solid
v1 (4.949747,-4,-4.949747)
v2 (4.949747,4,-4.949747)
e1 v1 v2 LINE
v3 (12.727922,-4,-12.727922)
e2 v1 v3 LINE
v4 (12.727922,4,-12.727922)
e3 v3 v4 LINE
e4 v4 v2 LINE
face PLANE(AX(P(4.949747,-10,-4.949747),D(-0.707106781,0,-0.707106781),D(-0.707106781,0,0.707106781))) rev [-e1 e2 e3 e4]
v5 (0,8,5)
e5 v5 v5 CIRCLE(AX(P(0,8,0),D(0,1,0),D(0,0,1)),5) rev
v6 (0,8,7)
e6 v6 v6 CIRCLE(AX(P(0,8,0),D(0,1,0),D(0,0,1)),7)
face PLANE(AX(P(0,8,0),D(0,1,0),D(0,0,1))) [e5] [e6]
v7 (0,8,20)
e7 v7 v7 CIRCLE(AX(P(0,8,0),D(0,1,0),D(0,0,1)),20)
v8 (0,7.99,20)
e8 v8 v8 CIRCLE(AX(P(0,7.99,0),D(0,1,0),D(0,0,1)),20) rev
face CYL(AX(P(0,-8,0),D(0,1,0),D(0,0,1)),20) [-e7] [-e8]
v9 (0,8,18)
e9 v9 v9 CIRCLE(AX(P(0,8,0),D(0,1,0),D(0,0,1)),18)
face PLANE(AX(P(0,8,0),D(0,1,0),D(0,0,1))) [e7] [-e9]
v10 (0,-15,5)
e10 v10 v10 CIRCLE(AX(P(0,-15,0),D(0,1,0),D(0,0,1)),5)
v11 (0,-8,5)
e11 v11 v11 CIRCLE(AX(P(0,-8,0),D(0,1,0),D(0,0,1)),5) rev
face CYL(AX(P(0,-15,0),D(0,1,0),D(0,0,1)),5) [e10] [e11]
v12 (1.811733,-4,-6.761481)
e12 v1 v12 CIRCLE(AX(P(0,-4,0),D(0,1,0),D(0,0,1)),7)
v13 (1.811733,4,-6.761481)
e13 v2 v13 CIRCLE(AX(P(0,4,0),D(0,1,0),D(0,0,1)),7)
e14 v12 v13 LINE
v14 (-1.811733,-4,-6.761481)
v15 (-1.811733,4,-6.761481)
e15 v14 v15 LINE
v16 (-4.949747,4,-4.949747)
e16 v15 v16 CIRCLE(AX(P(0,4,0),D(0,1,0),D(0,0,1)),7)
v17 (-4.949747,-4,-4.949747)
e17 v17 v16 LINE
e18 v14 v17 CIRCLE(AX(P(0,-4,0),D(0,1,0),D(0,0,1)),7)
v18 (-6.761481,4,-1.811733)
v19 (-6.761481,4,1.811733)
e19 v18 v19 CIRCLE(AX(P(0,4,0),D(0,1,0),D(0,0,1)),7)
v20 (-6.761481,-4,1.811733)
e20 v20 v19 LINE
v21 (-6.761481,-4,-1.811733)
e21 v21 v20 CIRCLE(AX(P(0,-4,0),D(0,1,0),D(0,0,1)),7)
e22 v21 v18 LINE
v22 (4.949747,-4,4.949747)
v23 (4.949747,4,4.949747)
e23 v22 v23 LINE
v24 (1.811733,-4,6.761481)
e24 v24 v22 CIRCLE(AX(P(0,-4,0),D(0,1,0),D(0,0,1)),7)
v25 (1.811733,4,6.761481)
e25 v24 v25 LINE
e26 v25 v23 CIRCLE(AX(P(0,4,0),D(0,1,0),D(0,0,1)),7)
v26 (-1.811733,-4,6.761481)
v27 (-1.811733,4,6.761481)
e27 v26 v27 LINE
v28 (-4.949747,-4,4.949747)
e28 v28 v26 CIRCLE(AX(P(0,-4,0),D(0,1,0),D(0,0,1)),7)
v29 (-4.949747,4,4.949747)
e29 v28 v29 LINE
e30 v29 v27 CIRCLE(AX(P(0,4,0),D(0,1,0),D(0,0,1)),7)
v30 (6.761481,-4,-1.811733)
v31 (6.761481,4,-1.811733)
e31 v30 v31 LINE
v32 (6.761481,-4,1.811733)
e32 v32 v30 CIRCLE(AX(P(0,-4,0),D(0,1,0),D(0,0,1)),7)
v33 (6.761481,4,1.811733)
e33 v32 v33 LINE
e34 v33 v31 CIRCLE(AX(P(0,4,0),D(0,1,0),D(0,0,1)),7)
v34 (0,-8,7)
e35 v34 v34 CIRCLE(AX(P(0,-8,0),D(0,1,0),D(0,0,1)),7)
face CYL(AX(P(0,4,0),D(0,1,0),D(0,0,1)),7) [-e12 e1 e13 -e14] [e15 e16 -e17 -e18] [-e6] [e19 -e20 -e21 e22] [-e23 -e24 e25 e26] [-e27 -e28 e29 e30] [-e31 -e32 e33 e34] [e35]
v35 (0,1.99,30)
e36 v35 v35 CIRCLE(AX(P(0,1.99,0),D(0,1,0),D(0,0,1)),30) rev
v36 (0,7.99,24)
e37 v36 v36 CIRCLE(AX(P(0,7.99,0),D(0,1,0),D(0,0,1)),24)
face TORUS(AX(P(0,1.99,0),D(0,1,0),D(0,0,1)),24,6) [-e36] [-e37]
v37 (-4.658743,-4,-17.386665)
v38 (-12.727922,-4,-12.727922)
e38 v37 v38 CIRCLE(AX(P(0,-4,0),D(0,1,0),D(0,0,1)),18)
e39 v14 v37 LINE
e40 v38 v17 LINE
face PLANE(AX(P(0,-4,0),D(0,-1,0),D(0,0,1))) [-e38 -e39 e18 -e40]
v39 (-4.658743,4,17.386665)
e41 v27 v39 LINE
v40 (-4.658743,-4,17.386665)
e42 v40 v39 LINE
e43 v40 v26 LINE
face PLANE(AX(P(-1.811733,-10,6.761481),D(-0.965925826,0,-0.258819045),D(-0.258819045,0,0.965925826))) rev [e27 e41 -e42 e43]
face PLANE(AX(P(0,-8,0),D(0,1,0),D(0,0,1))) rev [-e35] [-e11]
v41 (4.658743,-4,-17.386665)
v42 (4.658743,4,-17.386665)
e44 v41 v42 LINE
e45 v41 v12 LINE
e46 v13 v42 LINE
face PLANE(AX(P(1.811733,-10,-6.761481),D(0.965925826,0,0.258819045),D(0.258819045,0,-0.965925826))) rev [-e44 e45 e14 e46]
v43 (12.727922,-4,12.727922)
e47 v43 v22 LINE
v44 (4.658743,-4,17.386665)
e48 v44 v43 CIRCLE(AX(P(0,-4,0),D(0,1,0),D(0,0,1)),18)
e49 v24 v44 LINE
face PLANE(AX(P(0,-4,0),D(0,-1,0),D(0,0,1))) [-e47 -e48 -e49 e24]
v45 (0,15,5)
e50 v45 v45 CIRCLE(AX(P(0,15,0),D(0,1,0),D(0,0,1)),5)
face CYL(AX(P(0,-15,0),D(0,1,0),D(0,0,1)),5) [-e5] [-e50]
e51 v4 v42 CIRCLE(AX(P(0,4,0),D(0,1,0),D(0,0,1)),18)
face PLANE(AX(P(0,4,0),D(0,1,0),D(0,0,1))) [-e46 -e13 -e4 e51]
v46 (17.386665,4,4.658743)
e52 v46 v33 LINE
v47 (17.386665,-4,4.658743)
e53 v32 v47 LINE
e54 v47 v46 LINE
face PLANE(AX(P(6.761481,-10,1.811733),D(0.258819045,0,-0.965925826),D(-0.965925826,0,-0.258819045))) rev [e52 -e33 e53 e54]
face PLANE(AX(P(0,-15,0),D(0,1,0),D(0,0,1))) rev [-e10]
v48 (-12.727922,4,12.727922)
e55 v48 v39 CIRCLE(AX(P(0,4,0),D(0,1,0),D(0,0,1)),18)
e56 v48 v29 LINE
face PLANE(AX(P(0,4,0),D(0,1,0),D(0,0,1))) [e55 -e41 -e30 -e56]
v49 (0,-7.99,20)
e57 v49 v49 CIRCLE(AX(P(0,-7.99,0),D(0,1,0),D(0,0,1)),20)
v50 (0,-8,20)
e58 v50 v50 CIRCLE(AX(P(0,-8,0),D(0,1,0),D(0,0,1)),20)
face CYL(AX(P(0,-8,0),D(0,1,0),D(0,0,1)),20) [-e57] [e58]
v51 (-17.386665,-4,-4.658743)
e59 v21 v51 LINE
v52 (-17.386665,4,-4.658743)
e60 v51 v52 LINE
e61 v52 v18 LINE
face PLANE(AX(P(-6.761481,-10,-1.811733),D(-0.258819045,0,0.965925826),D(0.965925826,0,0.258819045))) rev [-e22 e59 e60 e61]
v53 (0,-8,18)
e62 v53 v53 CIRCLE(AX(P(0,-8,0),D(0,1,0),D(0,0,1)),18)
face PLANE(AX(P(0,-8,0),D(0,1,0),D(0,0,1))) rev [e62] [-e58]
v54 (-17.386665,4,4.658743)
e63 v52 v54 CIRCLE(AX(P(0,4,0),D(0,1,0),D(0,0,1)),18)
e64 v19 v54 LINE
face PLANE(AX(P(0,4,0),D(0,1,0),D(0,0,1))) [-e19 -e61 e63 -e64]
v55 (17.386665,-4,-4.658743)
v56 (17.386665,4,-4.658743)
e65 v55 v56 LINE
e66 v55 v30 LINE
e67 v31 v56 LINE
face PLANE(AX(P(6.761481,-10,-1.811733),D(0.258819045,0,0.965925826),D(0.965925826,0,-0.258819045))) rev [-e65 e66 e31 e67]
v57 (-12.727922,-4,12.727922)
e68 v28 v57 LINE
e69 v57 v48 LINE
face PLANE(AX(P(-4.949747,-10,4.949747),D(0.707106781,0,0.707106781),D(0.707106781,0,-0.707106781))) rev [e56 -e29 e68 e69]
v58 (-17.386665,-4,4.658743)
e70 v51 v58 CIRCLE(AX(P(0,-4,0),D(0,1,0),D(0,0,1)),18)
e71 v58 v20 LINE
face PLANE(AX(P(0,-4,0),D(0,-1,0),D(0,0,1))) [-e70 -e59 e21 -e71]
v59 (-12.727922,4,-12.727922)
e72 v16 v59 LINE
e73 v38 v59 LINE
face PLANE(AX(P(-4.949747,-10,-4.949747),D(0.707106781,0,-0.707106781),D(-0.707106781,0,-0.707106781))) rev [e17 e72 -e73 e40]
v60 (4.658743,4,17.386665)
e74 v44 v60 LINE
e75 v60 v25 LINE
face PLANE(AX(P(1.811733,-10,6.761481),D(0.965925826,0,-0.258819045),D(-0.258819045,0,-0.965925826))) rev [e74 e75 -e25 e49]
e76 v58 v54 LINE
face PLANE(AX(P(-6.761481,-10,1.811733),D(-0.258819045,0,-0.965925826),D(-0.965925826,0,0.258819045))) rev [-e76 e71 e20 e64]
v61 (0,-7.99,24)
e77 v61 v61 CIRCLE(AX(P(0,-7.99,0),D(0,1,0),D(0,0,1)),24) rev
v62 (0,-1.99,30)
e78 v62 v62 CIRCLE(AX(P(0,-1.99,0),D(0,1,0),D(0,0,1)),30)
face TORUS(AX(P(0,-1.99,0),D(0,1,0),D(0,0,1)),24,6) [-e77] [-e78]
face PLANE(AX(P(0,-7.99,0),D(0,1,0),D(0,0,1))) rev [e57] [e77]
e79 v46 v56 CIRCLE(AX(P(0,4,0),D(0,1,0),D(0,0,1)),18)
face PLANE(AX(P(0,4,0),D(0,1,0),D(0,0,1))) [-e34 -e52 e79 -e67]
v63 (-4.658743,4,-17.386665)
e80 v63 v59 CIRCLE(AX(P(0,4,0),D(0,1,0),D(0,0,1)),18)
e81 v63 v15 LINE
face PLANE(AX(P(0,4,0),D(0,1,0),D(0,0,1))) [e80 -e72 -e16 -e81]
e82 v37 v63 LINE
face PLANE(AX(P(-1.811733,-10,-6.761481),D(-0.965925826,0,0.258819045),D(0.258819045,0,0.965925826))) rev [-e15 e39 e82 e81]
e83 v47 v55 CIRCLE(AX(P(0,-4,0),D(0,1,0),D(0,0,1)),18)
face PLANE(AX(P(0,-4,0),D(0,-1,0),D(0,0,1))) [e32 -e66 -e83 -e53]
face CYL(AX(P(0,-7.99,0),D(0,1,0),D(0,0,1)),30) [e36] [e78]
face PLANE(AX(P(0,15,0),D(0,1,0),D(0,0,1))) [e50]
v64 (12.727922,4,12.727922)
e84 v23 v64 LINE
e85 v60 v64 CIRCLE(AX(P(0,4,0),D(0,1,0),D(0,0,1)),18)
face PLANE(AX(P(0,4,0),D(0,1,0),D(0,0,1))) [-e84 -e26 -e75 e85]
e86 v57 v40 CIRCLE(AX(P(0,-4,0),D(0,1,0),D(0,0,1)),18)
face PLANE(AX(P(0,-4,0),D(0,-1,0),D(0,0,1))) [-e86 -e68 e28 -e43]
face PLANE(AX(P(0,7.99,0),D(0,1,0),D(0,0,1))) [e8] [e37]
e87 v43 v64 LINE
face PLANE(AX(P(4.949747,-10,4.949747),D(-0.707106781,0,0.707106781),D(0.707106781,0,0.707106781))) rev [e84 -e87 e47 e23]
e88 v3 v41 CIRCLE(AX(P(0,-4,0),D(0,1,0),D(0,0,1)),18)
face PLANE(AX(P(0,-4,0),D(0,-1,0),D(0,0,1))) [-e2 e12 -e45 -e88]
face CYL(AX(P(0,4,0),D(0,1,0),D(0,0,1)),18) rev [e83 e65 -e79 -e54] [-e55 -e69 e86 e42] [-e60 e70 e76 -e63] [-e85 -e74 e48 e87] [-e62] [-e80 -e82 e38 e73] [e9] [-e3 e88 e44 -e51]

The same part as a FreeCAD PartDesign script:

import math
import FreeCAD as App
import Part
import Sketcher

V = App.Vector
Q = App.Units.Quantity


def edges_at(feature, points):
    """Names of the edges that pass closest to the given points."""
    edges = feature.Shape.Edges
    near = lambda p: min(range(len(edges)), key=lambda i: edges[i].distToShape(Part.Vertex(*p))[0])
    return sorted({f"Edge{near(p) + 1}" for p in points})

doc = App.newDocument("Part")
body = doc.addObject("PartDesign::Body", "Body")

sketch1 = body.newObject("Sketcher::SketchObject", "Sketch")
sketch1.AttachmentSupport = (doc.getObject("XZ_Plane"), [""])
sketch1.MapMode = "FlatFace"
sketch1.addGeometry(Part.Circle(V(0, 0, 0), V(0, 0, 1), 5), False)
sketch1.addConstraint(Sketcher.Constraint("Coincident", 0, 3, -1, 1))
sketch1.addConstraint(Sketcher.Constraint("Diameter", 0, Q("10 mm")))
pad1 = body.newObject("PartDesign::Pad", "Pad")
pad1.Profile = sketch1
pad1.Type = "TwoLengths"
pad1.Length = 15
pad1.Length2 = 15
pad1.Reversed = True

sketch2 = body.newObject("Sketcher::SketchObject", "Sketch001")
sketch2.AttachmentSupport = (doc.getObject("XZ_Plane"), [""])
sketch2.MapMode = "FlatFace"
sketch2.addGeometry(Part.Circle(V(0, 0, 0), V(0, 0, 1), 20), False)
sketch2.addConstraint(Sketcher.Constraint("Coincident", 0, 3, -1, 1))
sketch2.addConstraint(Sketcher.Constraint("Diameter", 0, Q("40 mm")))
pad2 = body.newObject("PartDesign::Pad", "Pad001")
pad2.Profile = sketch2
pad2.Type = "TwoLengths"
pad2.Length = 8
pad2.Length2 = 8
pad2.Reversed = True

sketch3 = body.newObject("Sketcher::SketchObject", "Sketch002")
sketch3.AttachmentSupport = (doc.getObject("XZ_Plane"), [""])
sketch3.MapMode = "FlatFace"
sketch3.AttachmentOffset = App.Placement(V(0, 0, -8), App.Rotation())
sketch3.addGeometry(Part.Circle(V(0, 0, 0), V(0, 0, 1), 18), False)
sketch3.addGeometry(Part.Circle(V(0, 0, 0), V(0, 0, 1), 7), False)
sketch3.addConstraint(Sketcher.Constraint("Coincident", 0, 3, -1, 1))
sketch3.addConstraint(Sketcher.Constraint("Coincident", 1, 3, -1, 1))
sketch3.addConstraint(Sketcher.Constraint("Diameter", 0, Q("36 mm")))
sketch3.addConstraint(Sketcher.Constraint("Diameter", 1, Q("14 mm")))
pocket1 = body.newObject("PartDesign::Pocket", "Pocket")
pocket1.Profile = sketch3
pocket1.Length = 4
pocket1.Reversed = True
doc.recompute()

mirrored = body.newObject("PartDesign::Mirrored", "Mirrored")
mirrored.Originals = [pocket1]
mirrored.MirrorPlane = (doc.getObject("XZ_Plane"), [""])
body.Tip = mirrored

sketch4 = body.newObject("Sketcher::SketchObject", "Sketch003")
sketch4.AttachmentSupport = (doc.getObject("XZ_Plane"), [""])
sketch4.MapMode = "FlatFace"
sketch4.AttachmentOffset = App.Placement(V(0, 0, -4), App.Rotation())
sketch4.addGeometry(Part.LineSegment(V(-4.7, -17.4, 0), V(-1.8, -6.8, 0)), False)
sketch4.addGeometry(Part.ArcOfCircle(Part.Circle(V(0, 0, 0), V(0, 0, 1), 7), math.radians(-105), math.radians(-75)), False)
sketch4.addGeometry(Part.LineSegment(V(1.8, -6.8, 0), V(4.7, -17.4, 0)), False)
sketch4.addGeometry(Part.ArcOfCircle(Part.Circle(V(0, 0, 0), V(0, 0, 1), 18), math.radians(-105), math.radians(-75)), False)
sketch4.addConstraint(Sketcher.Constraint("Coincident", 0, 2, 1, 1))
sketch4.addConstraint(Sketcher.Constraint("Coincident", 1, 2, 2, 1))
sketch4.addConstraint(Sketcher.Constraint("Coincident", 2, 2, 3, 2))
sketch4.addConstraint(Sketcher.Constraint("Coincident", 3, 1, 0, 1))
sketch4.addConstraint(Sketcher.Constraint("Coincident", 1, 3, -1, 1))
sketch4.addConstraint(Sketcher.Constraint("Coincident", 3, 3, -1, 1))
sketch4.addConstraint(Sketcher.Constraint("Horizontal", 0, 2, 1, 2))
sketch4.addConstraint(Sketcher.Constraint("Horizontal", 2, 2, 3, 1))
sketch4.addConstraint(Sketcher.Constraint("Angle", 0, Q("74.999997 deg")))
sketch4.addConstraint(Sketcher.Constraint("Distance", 0, Q("11 mm")))
sketch4.addConstraint(Sketcher.Constraint("Radius", 1, Q("7.000004 mm")))
sketch4.addConstraint(Sketcher.Constraint("DistanceY", 0, 2, -1, 1, Q("6.761481 mm")))
pocket2 = body.newObject("PartDesign::Pocket", "Pocket001")
pocket2.Profile = sketch4
pocket2.Length = 14
pocket2.Reversed = True
doc.recompute()

polarpattern = body.newObject("PartDesign::PolarPattern", "PolarPattern")
polarpattern.Originals = [pocket2]
polarpattern.Axis = (doc.getObject("Y_Axis"), [""])
polarpattern.Angle = 360
polarpattern.Occurrences = 6
body.Tip = polarpattern

sketch5 = body.newObject("Sketcher::SketchObject", "Sketch004")
sketch5.AttachmentSupport = (doc.getObject("XZ_Plane"), [""])
sketch5.MapMode = "FlatFace"
sketch5.addGeometry(Part.Circle(V(0, 0, 0), V(0, 0, 1), 30), False)
sketch5.addGeometry(Part.Circle(V(0, 0, 0), V(0, 0, 1), 20), False)
sketch5.addConstraint(Sketcher.Constraint("Coincident", 0, 3, -1, 1))
sketch5.addConstraint(Sketcher.Constraint("Coincident", 1, 3, -1, 1))
sketch5.addConstraint(Sketcher.Constraint("Diameter", 0, Q("60 mm")))
sketch5.addConstraint(Sketcher.Constraint("Diameter", 1, Q("40 mm")))
pad3 = body.newObject("PartDesign::Pad", "Pad002")
pad3.Profile = sketch5
pad3.Type = "TwoLengths"
pad3.Length = 7.99
pad3.Length2 = 7.99
pad3.Reversed = True
doc.recompute()

fillet = body.newObject("PartDesign::Fillet", "Fillet")
fillet.Base = (pad3, edges_at(pad3, [(-30, -7.99, 0), (-30, 7.99, 0)]))
fillet.Radius = 6

doc.recompute()
